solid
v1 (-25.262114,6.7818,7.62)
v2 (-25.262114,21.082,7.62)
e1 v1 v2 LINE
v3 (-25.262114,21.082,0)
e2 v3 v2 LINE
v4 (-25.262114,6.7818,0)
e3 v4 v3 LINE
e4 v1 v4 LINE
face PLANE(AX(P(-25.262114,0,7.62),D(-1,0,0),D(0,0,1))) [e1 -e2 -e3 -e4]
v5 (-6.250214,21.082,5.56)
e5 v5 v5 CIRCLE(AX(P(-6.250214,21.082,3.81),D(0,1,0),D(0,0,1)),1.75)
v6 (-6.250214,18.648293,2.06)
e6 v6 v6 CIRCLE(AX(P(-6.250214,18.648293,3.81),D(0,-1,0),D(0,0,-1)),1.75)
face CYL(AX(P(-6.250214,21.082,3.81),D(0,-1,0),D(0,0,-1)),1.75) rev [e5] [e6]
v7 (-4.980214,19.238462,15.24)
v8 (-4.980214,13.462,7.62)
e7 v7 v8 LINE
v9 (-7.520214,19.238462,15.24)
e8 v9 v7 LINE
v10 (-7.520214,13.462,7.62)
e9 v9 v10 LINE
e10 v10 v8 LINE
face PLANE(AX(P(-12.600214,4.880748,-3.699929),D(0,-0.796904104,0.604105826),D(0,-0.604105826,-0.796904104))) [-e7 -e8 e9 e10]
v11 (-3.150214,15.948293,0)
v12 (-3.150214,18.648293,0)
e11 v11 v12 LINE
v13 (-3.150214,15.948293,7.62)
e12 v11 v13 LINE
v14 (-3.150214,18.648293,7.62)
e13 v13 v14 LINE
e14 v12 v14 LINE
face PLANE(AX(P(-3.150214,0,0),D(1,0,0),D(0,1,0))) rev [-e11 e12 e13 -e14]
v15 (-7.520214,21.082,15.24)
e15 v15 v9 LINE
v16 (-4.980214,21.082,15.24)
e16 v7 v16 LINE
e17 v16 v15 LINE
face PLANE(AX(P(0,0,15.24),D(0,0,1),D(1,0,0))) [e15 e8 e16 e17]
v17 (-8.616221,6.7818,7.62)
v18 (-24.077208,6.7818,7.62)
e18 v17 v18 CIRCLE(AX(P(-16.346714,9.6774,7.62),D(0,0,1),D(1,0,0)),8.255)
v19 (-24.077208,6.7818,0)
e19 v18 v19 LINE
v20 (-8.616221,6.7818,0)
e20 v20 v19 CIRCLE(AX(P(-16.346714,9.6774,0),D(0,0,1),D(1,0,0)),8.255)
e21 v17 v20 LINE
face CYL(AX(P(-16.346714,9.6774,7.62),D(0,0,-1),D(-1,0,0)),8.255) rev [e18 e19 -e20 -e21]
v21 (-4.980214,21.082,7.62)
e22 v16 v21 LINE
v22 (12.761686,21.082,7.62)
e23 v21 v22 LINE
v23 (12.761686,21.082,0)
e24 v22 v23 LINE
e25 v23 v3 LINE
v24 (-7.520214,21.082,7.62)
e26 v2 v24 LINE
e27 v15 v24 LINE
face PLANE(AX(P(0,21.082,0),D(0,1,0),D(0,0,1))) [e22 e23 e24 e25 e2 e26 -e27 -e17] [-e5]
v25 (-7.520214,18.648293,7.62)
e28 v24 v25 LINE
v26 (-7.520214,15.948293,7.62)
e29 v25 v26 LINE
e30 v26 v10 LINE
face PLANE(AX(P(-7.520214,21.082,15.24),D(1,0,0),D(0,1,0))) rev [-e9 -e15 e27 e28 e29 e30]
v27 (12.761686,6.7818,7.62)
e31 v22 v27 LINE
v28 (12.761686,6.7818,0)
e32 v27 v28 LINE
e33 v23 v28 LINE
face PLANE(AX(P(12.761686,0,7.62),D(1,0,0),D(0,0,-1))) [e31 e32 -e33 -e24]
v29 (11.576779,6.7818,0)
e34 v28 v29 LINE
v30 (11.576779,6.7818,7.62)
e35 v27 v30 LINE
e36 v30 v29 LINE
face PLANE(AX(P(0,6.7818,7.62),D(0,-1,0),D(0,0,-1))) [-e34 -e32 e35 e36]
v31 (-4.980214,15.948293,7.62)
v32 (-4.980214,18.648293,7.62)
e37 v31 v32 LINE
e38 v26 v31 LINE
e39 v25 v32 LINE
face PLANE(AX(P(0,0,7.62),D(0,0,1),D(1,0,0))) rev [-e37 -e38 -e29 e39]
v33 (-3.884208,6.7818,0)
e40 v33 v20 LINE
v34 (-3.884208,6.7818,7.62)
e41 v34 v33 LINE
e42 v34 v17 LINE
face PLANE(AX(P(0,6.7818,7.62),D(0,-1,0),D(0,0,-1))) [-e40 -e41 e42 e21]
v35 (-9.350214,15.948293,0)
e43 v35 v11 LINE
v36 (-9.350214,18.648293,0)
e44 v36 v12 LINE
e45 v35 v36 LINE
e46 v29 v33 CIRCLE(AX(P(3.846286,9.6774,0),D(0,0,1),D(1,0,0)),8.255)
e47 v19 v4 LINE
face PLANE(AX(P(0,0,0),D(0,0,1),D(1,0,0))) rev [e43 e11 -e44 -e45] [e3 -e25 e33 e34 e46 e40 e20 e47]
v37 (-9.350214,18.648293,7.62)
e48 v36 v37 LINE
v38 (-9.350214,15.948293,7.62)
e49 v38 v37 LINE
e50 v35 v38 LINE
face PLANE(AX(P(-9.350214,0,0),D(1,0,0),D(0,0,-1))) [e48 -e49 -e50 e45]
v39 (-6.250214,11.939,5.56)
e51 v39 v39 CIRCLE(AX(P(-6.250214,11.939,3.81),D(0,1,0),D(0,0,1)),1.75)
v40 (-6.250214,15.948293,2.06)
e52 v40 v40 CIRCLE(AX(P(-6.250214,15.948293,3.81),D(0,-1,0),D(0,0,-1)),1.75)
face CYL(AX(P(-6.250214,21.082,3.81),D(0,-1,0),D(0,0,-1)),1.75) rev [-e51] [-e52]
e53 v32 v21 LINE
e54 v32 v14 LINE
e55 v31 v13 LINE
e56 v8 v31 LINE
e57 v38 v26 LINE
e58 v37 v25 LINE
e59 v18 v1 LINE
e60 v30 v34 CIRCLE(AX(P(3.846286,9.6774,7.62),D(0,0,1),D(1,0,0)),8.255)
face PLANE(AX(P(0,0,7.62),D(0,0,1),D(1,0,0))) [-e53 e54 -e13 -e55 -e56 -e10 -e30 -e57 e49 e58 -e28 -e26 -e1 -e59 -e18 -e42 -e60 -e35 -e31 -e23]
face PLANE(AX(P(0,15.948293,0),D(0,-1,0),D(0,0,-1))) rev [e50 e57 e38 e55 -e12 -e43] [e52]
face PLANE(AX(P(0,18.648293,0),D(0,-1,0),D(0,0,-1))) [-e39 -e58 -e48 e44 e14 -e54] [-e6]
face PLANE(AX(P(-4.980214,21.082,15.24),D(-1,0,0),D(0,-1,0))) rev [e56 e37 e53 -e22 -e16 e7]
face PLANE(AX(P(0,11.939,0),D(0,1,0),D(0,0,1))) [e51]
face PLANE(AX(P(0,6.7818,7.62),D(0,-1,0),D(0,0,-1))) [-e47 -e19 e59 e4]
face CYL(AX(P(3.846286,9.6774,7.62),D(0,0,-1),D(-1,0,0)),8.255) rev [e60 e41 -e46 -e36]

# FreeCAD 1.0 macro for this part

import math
import FreeCAD as App
import Part
import Sketcher
from FreeCAD import Vector
Q = App.Units.Quantity

doc = App.newDocument("Part")
body = doc.addObject("PartDesign::Body", "Body")

# Sketch on XY plane
sketch1 = body.newObject("Sketcher::SketchObject", "Sketch")
sketch1.AttachmentSupport = (doc.getObject("XY_Plane"), [""])
sketch1.MapMode = "FlatFace"
sketch1.addGeometry([
    Part.ArcOfCircle(Part.Circle(Vector(-16.346714, 9.6774, 0), Vector(0, 0, 1), 8.255), math.radians(-20.534372), math.radians(200.534372)),  # 0
    Part.LineSegment(Vector(-8.616221, 6.7818, 0), Vector(-3.884208, 6.7818, 0)),  # 1
    Part.ArcOfCircle(Part.Circle(Vector(3.846286, 9.6774, 0), Vector(0, 0, 1), 8.255), math.radians(-20.534372), math.radians(200.534372)),  # 2
    Part.LineSegment(Vector(11.576779, 6.7818, 0), Vector(12.761686, 6.7818, 0)),  # 3
    Part.LineSegment(Vector(12.761686, 6.7818, 0), Vector(12.761686, 19.939, 0)),  # 4
    Part.LineSegment(Vector(12.761686, 19.939, 0), Vector(-25.262114, 19.939, 0)),  # 5
    Part.LineSegment(Vector(-25.262114, 19.939, 0), Vector(-25.262114, 6.7818, 0)),  # 6
    Part.LineSegment(Vector(-25.262114, 6.7818, 0), Vector(-24.077208, 6.7818, 0)),  # 7
], False)
sketch1.addConstraint([
    Sketcher.Constraint("Coincident", 0, 1, 1, 1),
    Sketcher.Constraint("Coincident", 1, 2, 2, 2),
    Sketcher.Constraint("Coincident", 2, 1, 3, 1),
    Sketcher.Constraint("Coincident", 3, 2, 4, 1),
    Sketcher.Constraint("Coincident", 4, 2, 5, 1),
    Sketcher.Constraint("Coincident", 5, 2, 6, 1),
    Sketcher.Constraint("Coincident", 6, 2, 7, 1),
    Sketcher.Constraint("Coincident", 7, 2, 0, 2),
    Sketcher.Constraint("Horizontal", 1),
    Sketcher.Constraint("Horizontal", 3),
    Sketcher.Constraint("Vertical", 4),
    Sketcher.Constraint("Horizontal", 5),
    Sketcher.Constraint("Vertical", 6),
    Sketcher.Constraint("Horizontal", 7),
    Sketcher.Constraint("Equal", 0, 2),
    Sketcher.Constraint("Horizontal", 0, 3, 2, 3),
    Sketcher.Constraint("Horizontal", 1, 2, 2, 1),
    Sketcher.Constraint("Horizontal", 3, 2, 6, 2),
    Sketcher.Constraint("Equal", 3, 7),
    Sketcher.Constraint("Radius", 0, Q("0.325 in")),
    Sketcher.Constraint("DistanceX", 5, 2, 5, 1, Q("1.497 in")),
    Sketcher.Constraint("DistanceY", 4, 1, 4, 2, Q("0.518 in")),
    Sketcher.Constraint("DistanceY", -1, 1, 0, 3, Q("0.381 in")),
    Sketcher.Constraint("DistanceY", -1, 1, 0, 1, Q("0.267 in")),
    Sketcher.Constraint("DistanceX", 0, 3, 2, 3, Q("0.795 in")),
    Sketcher.Constraint("DistanceX", 0, 1, -1, 1, Q("8.616221 mm")),
])
pad1 = body.newObject("PartDesign::Pad", "Pad")
pad1.Profile = sketch1
pad1.Length = Q("0.3 in")

# Sketch on XZ plane
sketch2 = body.newObject("Sketcher::SketchObject", "Sketch001")
sketch2.AttachmentSupport = (doc.getObject("XZ_Plane"), [""])
sketch2.MapMode = "FlatFace"
sketch2.AttachmentOffset = App.Placement(Vector(0, 0, -0.785 * 25.4), App.Rotation())
sketch2.addGeometry(Part.Circle(Vector(-6.250214, 3.81, 0), Vector(0, 0, 1), 1.75), False)
sketch2.addConstraint([
    Sketcher.Constraint("Diameter", 0, Q("3.5 mm")),
    Sketcher.Constraint("DistanceY", -1, 1, 0, 3, Q("0.15 in")),
    Sketcher.Constraint("DistanceX", 0, 3, -1, 1, Q("6.250214 mm")),
])
pocket1 = body.newObject("PartDesign::Pocket", "Pocket")
pocket1.Profile = sketch2
pocket1.Type = "TwoLengths"
pocket1.Length = Q("0.045 in")
pocket1.Length2 = 8

# Sketch on XY plane
sketch3 = body.newObject("Sketcher::SketchObject", "Sketch002")
sketch3.AttachmentSupport = (doc.getObject("XY_Plane"), [""])
sketch3.MapMode = "FlatFace"
sketch3.AttachmentOffset = App.Placement(Vector(0, 0, 0.3 * 25.4), App.Rotation())
sketch3.addGeometry([
    Part.LineSegment(Vector(-9.350214, 15.948293, 0), Vector(-3.150214, 15.948293, 0)),
    Part.LineSegment(Vector(-3.150214, 15.948293, 0), Vector(-3.150214, 18.648293, 0)),
    Part.LineSegment(Vector(-3.150214, 18.648293, 0), Vector(-9.350214, 18.648293, 0)),
    Part.LineSegment(Vector(-9.350214, 18.648293, 0), Vector(-9.350214, 15.948293, 0)),
], False)
sketch3.addConstraint([
    Sketcher.Constraint("Coincident", 0, 2, 1, 1),
    Sketcher.Constraint("Coincident", 1, 2, 2, 1),
    Sketcher.Constraint("Coincident", 2, 2, 3, 1),
    Sketcher.Constraint("Coincident", 3, 2, 0, 1),
    Sketcher.Constraint("Horizontal", 0),
    Sketcher.Constraint("Vertical", 1),
    Sketcher.Constraint("Horizontal", 2),
    Sketcher.Constraint("Vertical", 3),
    Sketcher.Constraint("DistanceX", 0, 1, 0, 2, Q("6.2 mm")),
    Sketcher.Constraint("DistanceY", 1, 1, 1, 2, Q("2.7 mm")),
    Sketcher.Constraint("DistanceX", 0, 2, -1, 1, Q("3.150214 mm")),
    Sketcher.Constraint("DistanceY", -1, 1, 0, 2, Q("15.948293 mm")),
])
pocket2 = body.newObject("PartDesign::Pocket", "Pocket001")
pocket2.Profile = sketch3
pocket2.Length = Q("0.3 in")

# Sketch on XZ plane
sketch4 = body.newObject("Sketcher::SketchObject", "Sketch003")
sketch4.AttachmentSupport = (doc.getObject("XZ_Plane"), [""])
sketch4.MapMode = "FlatFace"
sketch4.AttachmentOffset = App.Placement(Vector(0, 0, -0.83 * 25.4), App.Rotation())
sketch4.addGeometry([
    Part.LineSegment(Vector(-25.262114, 0, 0), Vector(-25.262114, 7.62, 0)),  # 0
    Part.LineSegment(Vector(-25.262114, 7.62, 0), Vector(12.761686, 7.62, 0)),  # 1
    Part.LineSegment(Vector(12.761686, 7.62, 0), Vector(12.761686, 0, 0)),  # 2
    Part.LineSegment(Vector(12.761686, 0, 0), Vector(-25.262114, 0, 0)),  # 3
    Part.Circle(Vector(-6.250214, 3.81, 0), Vector(0, 0, 1), 1.75),  # 4
], False)
sketch4.addConstraint([
    Sketcher.Constraint("Coincident", 0, 2, 1, 1),
    Sketcher.Constraint("Coincident", 1, 2, 2, 1),
    Sketcher.Constraint("Coincident", 2, 2, 3, 1),
    Sketcher.Constraint("Coincident", 3, 2, 0, 1),
    Sketcher.Constraint("Vertical", 0),
    Sketcher.Constraint("Horizontal", 1),
    Sketcher.Constraint("Vertical", 2),
    Sketcher.Constraint("Horizontal", 3),
    Sketcher.Constraint("PointOnObject", 2, 2, -1),
    Sketcher.Constraint("DistanceY", 0, 1, 0, 2, Q("0.3 in")),
    Sketcher.Constraint("Diameter", 4, Q("3.5 mm")),
    Sketcher.Constraint("DistanceX", 1, 1, 1, 2, Q("1.497 in")),
    Sketcher.Constraint("DistanceY", -1, 1, 4, 3, Q("0.15 in")),
    Sketcher.Constraint("DistanceX", 0, 2, 4, 3, Q("0.7485 in")),
    Sketcher.Constraint("DistanceX", 4, 3, -1, 1, Q("6.250214 mm")),
])
pad2 = body.newObject("PartDesign::Pad", "Pad001")
pad2.Profile = sketch4
pad2.Length = Q("0.045 in")

# Sketch on XY plane
sketch5 = body.newObject("Sketcher::SketchObject", "Sketch004")
sketch5.AttachmentSupport = (doc.getObject("XY_Plane"), [""])
sketch5.MapMode = "FlatFace"
sketch5.AttachmentOffset = App.Placement(Vector(0, 0, 0.3 * 25.4), App.Rotation())
sketch5.addGeometry([
    Part.LineSegment(Vector(-4.980214, 21.082, 0), Vector(-7.520214, 21.082, 0)),
    Part.LineSegment(Vector(-7.520214, 21.082, 0), Vector(-7.520214, 13.462, 0)),
    Part.LineSegment(Vector(-7.520214, 13.462, 0), Vector(-4.980214, 13.462, 0)),
    Part.LineSegment(Vector(-4.980214, 13.462, 0), Vector(-4.980214, 21.082, 0)),
], False)
sketch5.addConstraint([
    Sketcher.Constraint("Coincident", 0, 2, 1, 1),
    Sketcher.Constraint("Coincident", 1, 2, 2, 1),
    Sketcher.Constraint("Coincident", 2, 2, 3, 1),
    Sketcher.Constraint("Coincident", 3, 2, 0, 1),
    Sketcher.Constraint("Horizontal", 0),
    Sketcher.Constraint("Vertical", 1),
    Sketcher.Constraint("Horizontal", 2),
    Sketcher.Constraint("Vertical", 3),
    Sketcher.Constraint("DistanceX", 0, 2, 0, 1, Q("0.1 in")),
    Sketcher.Constraint("DistanceY", 1, 2, 1, 1, Q("0.3 in")),
    Sketcher.Constraint("DistanceY", -1, 1, 0, 2, Q("0.83 in")),
    Sketcher.Constraint("DistanceX", 0, 2, -1, 1, Q("7.520214 mm")),
])
pad3 = body.newObject("PartDesign::Pad", "Pad002")
pad3.Profile = sketch5
pad3.Length = Q("0.3 in")

# Sketch on YZ plane
sketch6 = body.newObject("Sketcher::SketchObject", "Sketch005")
sketch6.AttachmentSupport = (doc.getObject("YZ_Plane"), [""])
sketch6.MapMode = "FlatFace"
sketch6.AttachmentOffset = App.Placement(Vector(0, 0, -4.980214), App.Rotation())
sketch6.addGeometry([
    Part.LineSegment(Vector(13.462, 15.24, 0), Vector(13.462, 7.62, 0)),
    Part.LineSegment(Vector(13.462, 7.62, 0), Vector(19.238462, 15.24, 0)),
    Part.LineSegment(Vector(19.238462, 15.24, 0), Vector(13.462, 15.24, 0)),
], False)
sketch6.addConstraint([
    Sketcher.Constraint("Coincident", 0, 2, 1, 1),
    Sketcher.Constraint("Coincident", 1, 2, 2, 1),
    Sketcher.Constraint("Coincident", 2, 2, 0, 1),
    Sketcher.Constraint("Vertical", 0),
    Sketcher.Constraint("Horizontal", 2),
    Sketcher.Constraint("DistanceY", 0, 2, 0, 1, Q("0.3 in")),
    Sketcher.Constraint("DistanceY", -1, 1, 0, 2, Q("0.3 in")),
    Sketcher.Constraint("DistanceX", -1, 1, 0, 2, Q("0.53 in")),
    Sketcher.Constraint("DistanceX", 2, 2, 2, 1, Q("5.776462 mm")),
])
pocket3 = body.newObject("PartDesign::Pocket", "Pocket002")
pocket3.Profile = sketch6
pocket3.Length = Q("0.3 in")

doc.recompute()
